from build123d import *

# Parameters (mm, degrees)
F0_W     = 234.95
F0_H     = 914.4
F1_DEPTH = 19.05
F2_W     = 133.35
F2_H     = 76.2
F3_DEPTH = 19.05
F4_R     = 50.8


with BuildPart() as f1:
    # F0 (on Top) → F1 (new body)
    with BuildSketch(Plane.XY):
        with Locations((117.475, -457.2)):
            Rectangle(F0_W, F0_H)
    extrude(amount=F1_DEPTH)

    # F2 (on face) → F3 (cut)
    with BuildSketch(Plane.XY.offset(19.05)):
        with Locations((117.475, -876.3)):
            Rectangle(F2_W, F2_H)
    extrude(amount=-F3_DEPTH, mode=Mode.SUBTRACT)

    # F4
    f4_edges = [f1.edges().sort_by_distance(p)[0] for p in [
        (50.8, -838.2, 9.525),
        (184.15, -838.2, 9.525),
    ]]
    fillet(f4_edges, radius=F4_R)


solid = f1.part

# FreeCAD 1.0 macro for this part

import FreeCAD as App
import Part
import Sketcher
from FreeCAD import Vector
Q = App.Units.Quantity


def edges_at(feature, points):
    """Names of the edges that pass closest to the given points."""
    edges = feature.Shape.Edges
    near = lambda p: min(range(len(edges)), key=lambda i: edges[i].distToShape(Part.Vertex(*p))[0])
    return sorted({f"Edge{near(p) + 1}" for p in points})


def add_polygon(sketch, points):
    """Adds a closed chain of lines whose ends are joined by coincident constraints."""
    first, n = sketch.GeometryCount, len(points)
    for a, b in zip(points, points[1:] + points[:1]):
        sketch.addGeometry(Part.LineSegment(App.Vector(*a, 0), App.Vector(*b, 0)), False)
    for i in range(n):
        sketch.addConstraint(Sketcher.Constraint("Coincident", first + i, 2, first + (i + 1) % n, 1))

doc = App.newDocument("Part")
body = doc.addObject("PartDesign::Body", "Body")

# Sketch on XY plane
sketch1 = body.newObject("Sketcher::SketchObject", "Sketch")
sketch1.AttachmentSupport = (doc.getObject("XY_Plane"), [""])
sketch1.MapMode = "FlatFace"
add_polygon(sketch1, [(0, 0), (0, -914), (235, -914), (235, 0)])  # lines 0-3
sketch1.addConstraint(Sketcher.Constraint("Vertical", 0))
sketch1.addConstraint(Sketcher.Constraint("Horizontal", 1))
sketch1.addConstraint(Sketcher.Constraint("Vertical", 2))
sketch1.addConstraint(Sketcher.Constraint("Horizontal", 3))
sketch1.addConstraint(Sketcher.Constraint("Coincident", 3, 2, -1, 1))
sketch1.addConstraint(Sketcher.Constraint("DistanceY", 0, 2, 0, 1, Q("36 in")))
sketch1.addConstraint(Sketcher.Constraint("DistanceX", 1, 1, 1, 2, Q("9.25 in")))
pad1 = body.newObject("PartDesign::Pad", "Pad")
pad1.Profile = sketch1
pad1.Length = Q("0.75 in")

# Sketch on XY plane
sketch2 = body.newObject("Sketcher::SketchObject", "Sketch001")
sketch2.AttachmentSupport = (doc.getObject("XY_Plane"), [""])
sketch2.MapMode = "FlatFace"
sketch2.AttachmentOffset = App.Placement(Vector(0, 0, 0.75 * 25.4), App.Rotation())
add_polygon(sketch2, [(51, -838), (51, -914), (184, -914), (184, -838)])  # lines 0-3
sketch2.addConstraint(Sketcher.Constraint("Vertical", 0))
sketch2.addConstraint(Sketcher.Constraint("Horizontal", 1))
sketch2.addConstraint(Sketcher.Constraint("Vertical", 2))
sketch2.addConstraint(Sketcher.Constraint("Horizontal", 3))
sketch2.addConstraint(Sketcher.Constraint("DistanceY", 0, 2, 0, 1, Q("3 in")))
sketch2.addConstraint(Sketcher.Constraint("DistanceX", -1, 1, 0, 2, Q("2 in")))
sketch2.addConstraint(Sketcher.Constraint("DistanceY", 0, 2, -1, 1, Q("36 in")))
sketch2.addConstraint(Sketcher.Constraint("DistanceX", 1, 1, 1, 2, Q("5.25 in")))
pocket1 = body.newObject("PartDesign::Pocket", "Pocket")
pocket1.Profile = sketch2
pocket1.Length = Q("0.75 in")
doc.recompute()

fillet = body.newObject("PartDesign::Fillet", "Fillet")
fillet.Base = (pocket1, edges_at(pocket1, [(50.8, -838.2, 9.525), (184.15, -838.2, 9.525)]))
fillet.Radius = Q("2 in")

doc.recompute()
